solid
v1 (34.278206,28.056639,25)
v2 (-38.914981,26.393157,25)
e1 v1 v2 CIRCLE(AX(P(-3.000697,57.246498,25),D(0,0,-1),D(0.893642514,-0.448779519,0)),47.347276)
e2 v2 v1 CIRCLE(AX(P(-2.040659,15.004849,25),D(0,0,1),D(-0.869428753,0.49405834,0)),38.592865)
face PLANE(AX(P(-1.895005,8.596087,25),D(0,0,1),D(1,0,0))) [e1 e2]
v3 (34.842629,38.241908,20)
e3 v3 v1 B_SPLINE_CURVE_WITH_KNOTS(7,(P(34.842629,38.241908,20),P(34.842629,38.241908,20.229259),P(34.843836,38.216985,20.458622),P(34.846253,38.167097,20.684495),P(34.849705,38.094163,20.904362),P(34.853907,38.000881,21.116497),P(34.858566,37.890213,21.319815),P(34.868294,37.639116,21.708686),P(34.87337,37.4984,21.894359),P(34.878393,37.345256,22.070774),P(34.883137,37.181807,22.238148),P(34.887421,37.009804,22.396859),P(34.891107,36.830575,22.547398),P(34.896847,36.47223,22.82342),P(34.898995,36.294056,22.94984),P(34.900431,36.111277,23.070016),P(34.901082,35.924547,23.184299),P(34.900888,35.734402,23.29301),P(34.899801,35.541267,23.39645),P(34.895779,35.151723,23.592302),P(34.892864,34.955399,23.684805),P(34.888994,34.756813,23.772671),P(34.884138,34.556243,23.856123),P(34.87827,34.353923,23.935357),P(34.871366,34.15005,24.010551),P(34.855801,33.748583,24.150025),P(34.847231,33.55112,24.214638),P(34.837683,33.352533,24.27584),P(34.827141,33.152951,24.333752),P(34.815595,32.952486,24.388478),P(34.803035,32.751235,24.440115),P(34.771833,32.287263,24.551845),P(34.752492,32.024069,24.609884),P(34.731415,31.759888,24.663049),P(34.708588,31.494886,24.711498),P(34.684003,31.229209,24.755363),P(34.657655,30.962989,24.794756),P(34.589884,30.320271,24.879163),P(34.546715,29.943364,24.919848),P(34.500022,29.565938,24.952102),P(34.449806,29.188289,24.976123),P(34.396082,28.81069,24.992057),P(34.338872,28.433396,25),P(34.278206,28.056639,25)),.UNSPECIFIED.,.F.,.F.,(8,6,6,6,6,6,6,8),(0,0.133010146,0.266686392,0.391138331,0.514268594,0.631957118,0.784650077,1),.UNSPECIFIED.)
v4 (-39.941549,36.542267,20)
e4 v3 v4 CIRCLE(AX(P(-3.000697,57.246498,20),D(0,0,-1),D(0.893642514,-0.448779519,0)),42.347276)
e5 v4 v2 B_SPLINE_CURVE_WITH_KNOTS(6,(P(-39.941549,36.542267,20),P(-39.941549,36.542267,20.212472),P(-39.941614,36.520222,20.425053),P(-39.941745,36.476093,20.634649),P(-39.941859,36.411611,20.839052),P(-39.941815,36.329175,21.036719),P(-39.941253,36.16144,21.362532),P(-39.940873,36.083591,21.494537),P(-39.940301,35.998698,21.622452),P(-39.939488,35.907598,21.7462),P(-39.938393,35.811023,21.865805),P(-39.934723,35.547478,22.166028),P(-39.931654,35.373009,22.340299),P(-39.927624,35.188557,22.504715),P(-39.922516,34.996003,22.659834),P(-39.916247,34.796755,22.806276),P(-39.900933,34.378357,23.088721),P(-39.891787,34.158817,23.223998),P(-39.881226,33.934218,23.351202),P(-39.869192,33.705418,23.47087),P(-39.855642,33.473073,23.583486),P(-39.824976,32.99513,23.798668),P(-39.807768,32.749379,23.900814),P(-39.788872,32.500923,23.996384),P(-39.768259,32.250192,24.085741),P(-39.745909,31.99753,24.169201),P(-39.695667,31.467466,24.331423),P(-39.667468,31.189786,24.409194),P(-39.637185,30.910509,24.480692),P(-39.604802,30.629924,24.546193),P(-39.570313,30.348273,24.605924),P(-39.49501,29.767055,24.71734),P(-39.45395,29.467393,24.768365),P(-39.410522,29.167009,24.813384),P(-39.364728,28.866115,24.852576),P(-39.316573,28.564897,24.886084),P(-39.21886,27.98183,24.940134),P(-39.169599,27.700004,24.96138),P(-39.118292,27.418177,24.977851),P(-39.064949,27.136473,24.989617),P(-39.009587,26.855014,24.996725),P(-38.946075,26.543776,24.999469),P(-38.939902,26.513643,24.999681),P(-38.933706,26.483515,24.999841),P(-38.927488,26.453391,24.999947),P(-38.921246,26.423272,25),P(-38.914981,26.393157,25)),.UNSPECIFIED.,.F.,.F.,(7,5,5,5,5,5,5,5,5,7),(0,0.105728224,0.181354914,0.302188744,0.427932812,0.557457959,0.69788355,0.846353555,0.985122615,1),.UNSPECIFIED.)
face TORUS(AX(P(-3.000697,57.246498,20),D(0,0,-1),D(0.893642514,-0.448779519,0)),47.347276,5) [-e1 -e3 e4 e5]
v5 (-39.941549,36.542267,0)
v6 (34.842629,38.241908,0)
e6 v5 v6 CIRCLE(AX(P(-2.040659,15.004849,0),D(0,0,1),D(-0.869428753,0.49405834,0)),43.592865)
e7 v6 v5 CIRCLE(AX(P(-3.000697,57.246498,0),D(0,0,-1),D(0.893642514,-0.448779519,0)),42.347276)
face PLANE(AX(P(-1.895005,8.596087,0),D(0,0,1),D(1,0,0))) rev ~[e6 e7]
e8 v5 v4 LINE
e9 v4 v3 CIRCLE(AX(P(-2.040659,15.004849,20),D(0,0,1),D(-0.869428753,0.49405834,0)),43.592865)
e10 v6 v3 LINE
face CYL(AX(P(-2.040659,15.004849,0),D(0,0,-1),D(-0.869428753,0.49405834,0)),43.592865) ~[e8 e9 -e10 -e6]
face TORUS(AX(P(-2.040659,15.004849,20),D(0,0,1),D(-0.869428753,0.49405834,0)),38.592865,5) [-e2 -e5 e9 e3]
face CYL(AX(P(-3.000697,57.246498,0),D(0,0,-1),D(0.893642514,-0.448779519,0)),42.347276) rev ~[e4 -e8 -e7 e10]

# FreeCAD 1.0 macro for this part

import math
import FreeCAD as App
import Part
import Sketcher

V = App.Vector
Q = App.Units.Quantity


def edges_at(feature, points):
    """Names of the edges that pass closest to the given points."""
    edges = feature.Shape.Edges
    near = lambda p: min(range(len(edges)), key=lambda i: edges[i].distToShape(Part.Vertex(*p))[0])
    return sorted({f"Edge{near(p) + 1}" for p in points})

doc = App.newDocument("Part")
body = doc.addObject("PartDesign::Body", "Body")

# Sketch on XY plane
sketch1 = doc.addObject("Sketcher::SketchObject", "Sketch")
body.addObject(sketch1)
sketch1.AttachmentSupport = (doc.XY_Plane, [""])
sketch1.MapMode = "FlatFace"
sketch1.addGeometry([
    Part.ArcOfCircle(Part.Circle(V(-3, 57, 0), V(0, 0, 1), 42), math.radians(-151), math.radians(-27)),
    Part.ArcOfCircle(Part.Circle(V(-2, 15, 0), V(0, 0, 1), 44), math.radians(150), math.radians(392)),
], False)
sketch1.addConstraint([
    Sketcher.Constraint("Coincident", 0, 1, 1, 1),
    Sketcher.Constraint("Coincident", 1, 2, 0, 2),
    Sketcher.Constraint("Radius", 0, Q("42.347276 mm")),
    Sketcher.Constraint("Radius", 1, Q("43.592865 mm")),
    Sketcher.Constraint("DistanceX", 1, 3, -1, 1, Q("2.040659 mm")),
    Sketcher.Constraint("DistanceY", -1, 1, 1, 3, Q("15.004849 mm")),
    Sketcher.Constraint("DistanceX", 0, 1, -1, 1, Q("39.941549 mm")),
    Sketcher.Constraint("DistanceX", -1, 1, 1, 2, Q("34.842629 mm")),
])
pad1 = doc.addObject("PartDesign::Pad", "Pad")
body.addObject(pad1)
pad1.Profile = sketch1
pad1.Length = 25
doc.recompute()

fillet = doc.addObject("PartDesign::Fillet", "Fillet")
body.addObject(fillet)
fillet.Base = (pad1, edges_at(pad1, [(-1.05, -28.577, 25), (-2.039, 14.91, 25)]))
fillet.Radius = 5

doc.recompute()
